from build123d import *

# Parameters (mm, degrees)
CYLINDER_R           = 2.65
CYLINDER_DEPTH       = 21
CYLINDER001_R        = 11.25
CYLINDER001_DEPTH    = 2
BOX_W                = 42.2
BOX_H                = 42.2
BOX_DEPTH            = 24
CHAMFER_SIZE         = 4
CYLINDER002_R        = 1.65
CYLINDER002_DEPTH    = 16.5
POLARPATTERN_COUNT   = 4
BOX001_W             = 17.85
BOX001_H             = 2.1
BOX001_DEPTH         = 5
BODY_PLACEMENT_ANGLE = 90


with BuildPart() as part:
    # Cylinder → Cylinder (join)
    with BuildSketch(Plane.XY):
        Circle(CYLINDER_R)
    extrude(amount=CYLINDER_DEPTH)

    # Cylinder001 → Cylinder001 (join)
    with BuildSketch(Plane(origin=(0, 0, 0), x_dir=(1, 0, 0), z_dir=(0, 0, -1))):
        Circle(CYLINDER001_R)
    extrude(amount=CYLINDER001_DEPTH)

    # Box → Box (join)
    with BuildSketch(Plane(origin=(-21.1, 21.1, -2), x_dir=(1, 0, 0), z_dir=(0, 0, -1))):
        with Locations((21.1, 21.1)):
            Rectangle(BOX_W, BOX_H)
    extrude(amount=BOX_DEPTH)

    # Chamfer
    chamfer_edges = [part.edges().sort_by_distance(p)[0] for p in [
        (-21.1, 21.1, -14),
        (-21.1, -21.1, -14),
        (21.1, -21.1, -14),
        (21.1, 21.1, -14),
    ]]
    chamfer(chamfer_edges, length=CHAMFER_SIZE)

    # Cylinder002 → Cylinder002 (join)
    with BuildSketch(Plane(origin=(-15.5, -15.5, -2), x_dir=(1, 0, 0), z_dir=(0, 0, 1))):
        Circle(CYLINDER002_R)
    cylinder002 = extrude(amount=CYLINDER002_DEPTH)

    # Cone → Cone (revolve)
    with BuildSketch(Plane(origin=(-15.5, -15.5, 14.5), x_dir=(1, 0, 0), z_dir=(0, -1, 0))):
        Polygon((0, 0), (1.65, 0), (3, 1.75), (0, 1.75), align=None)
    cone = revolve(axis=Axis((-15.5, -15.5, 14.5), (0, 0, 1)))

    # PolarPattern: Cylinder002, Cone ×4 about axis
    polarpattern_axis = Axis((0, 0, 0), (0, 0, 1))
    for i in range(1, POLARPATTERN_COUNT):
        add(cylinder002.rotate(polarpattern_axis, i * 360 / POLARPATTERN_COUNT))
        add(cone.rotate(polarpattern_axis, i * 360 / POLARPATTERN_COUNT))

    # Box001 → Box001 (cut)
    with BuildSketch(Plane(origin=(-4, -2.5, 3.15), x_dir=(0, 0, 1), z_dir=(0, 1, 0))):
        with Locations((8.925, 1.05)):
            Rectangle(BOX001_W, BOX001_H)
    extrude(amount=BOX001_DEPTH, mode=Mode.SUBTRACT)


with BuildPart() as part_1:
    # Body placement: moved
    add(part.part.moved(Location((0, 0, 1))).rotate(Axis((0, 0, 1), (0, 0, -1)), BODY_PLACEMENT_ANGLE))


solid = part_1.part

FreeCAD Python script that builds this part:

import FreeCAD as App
import Part
import Sketcher

V = App.Vector


def edges_at(feature, points):
    """Names of the edges that pass closest to the given points."""
    edges = feature.Shape.Edges
    near = lambda p: min(range(len(edges)), key=lambda i: edges[i].distToShape(Part.Vertex(*p))[0])
    return sorted({f"Edge{near(p) + 1}" for p in points})

doc = App.newDocument("Part")
body = doc.addObject("PartDesign::Body", "Body")

sketch1 = doc.addObject("Sketcher::SketchObject", "Sketch")
body.addObject(sketch1)
sketch1.AttachmentSupport = (doc.XY_Plane, [""])
sketch1.MapMode = "FlatFace"
sketch1.addGeometry(Part.Circle(V(0, 0, 0), V(0, 0, 1), 2.6), False)
sketch1.addConstraint(Sketcher.Constraint("Coincident", 0, 3, -1, 1))
sketch1.addConstraint(Sketcher.Constraint("Diameter", 0, 5.3))
pad1 = doc.addObject("PartDesign::Pad", "Pad")
body.addObject(pad1)
pad1.Profile = sketch1
pad1.Length = 21

sketch2 = doc.addObject("Sketcher::SketchObject", "Sketch001")
body.addObject(sketch2)
sketch2.AttachmentSupport = (doc.XY_Plane, [""])
sketch2.MapMode = "FlatFace"
sketch2.addGeometry(Part.Circle(V(0, 0, 0), V(0, 0, 1), 11), False)
sketch2.addConstraint(Sketcher.Constraint("Coincident", 0, 3, -1, 1))
sketch2.addConstraint(Sketcher.Constraint("Diameter", 0, 22.5))
pad2 = doc.addObject("PartDesign::Pad", "Pad001")
body.addObject(pad2)
pad2.Profile = sketch2
pad2.Length = 2
pad2.Reversed = True

sketch3 = doc.addObject("Sketcher::SketchObject", "Sketch002")
body.addObject(sketch3)
sketch3.AttachmentSupport = (doc.XY_Plane, [""])
sketch3.MapMode = "FlatFace"
sketch3.AttachmentOffset = App.Placement(V(0, 0, -2), App.Rotation())
sketch3.addGeometry(Part.LineSegment(V(-21, -21, 0), V(-21, 21, 0)), False)
sketch3.addGeometry(Part.LineSegment(V(-21, 21, 0), V(21, 21, 0)), False)
sketch3.addGeometry(Part.LineSegment(V(21, 21, 0), V(21, -21, 0)), False)
sketch3.addGeometry(Part.LineSegment(V(21, -21, 0), V(-21, -21, 0)), False)
sketch3.addConstraint(Sketcher.Constraint("Coincident", 0, 2, 1, 1))
sketch3.addConstraint(Sketcher.Constraint("Coincident", 1, 2, 2, 1))
sketch3.addConstraint(Sketcher.Constraint("Coincident", 2, 2, 3, 1))
sketch3.addConstraint(Sketcher.Constraint("Coincident", 3, 2, 0, 1))
sketch3.addConstraint(Sketcher.Constraint("Vertical", 0))
sketch3.addConstraint(Sketcher.Constraint("Horizontal", 1))
sketch3.addConstraint(Sketcher.Constraint("Vertical", 2))
sketch3.addConstraint(Sketcher.Constraint("Horizontal", 3))
sketch3.addConstraint(Sketcher.Constraint("Symmetric", 0, 2, 2, 2, -1, 1))
sketch3.addConstraint(Sketcher.Constraint("Equal", 3, 0))
sketch3.addConstraint(Sketcher.Constraint("DistanceX", 1, 1, 1, 2, 42.2))
pad3 = doc.addObject("PartDesign::Pad", "Pad002")
body.addObject(pad3)
pad3.Profile = sketch3
pad3.Length = 24
pad3.Reversed = True
doc.recompute()

chamfer = doc.addObject("PartDesign::Chamfer", "Chamfer")
body.addObject(chamfer)
chamfer.Base = (pad3, edges_at(pad3, [
    (-21.1, 21.1, -14),
    (-21.1, -21.1, -14),
    (21.1, -21.1, -14),
    (21.1, 21.1, -14),
]))
chamfer.Size = 4

sketch4 = doc.addObject("Sketcher::SketchObject", "Sketch003")
body.addObject(sketch4)
sketch4.AttachmentSupport = (doc.XY_Plane, [""])
sketch4.MapMode = "FlatFace"
sketch4.AttachmentOffset = App.Placement(V(0, 0, -2), App.Rotation())
sketch4.addGeometry(Part.Circle(V(-15.5, -15.5, 0), V(0, 0, 1), 1.6), False)
sketch4.addConstraint(Sketcher.Constraint("Diameter", 0, 3.3))
sketch4.addConstraint(Sketcher.Constraint("DistanceX", 0, 3, -1, 1, 15.5))
sketch4.addConstraint(Sketcher.Constraint("DistanceY", 0, 3, -1, 1, 15.5))
pad4 = doc.addObject("PartDesign::Pad", "Pad003")
body.addObject(pad4)
pad4.Profile = sketch4
pad4.Length = 16.5

sketch5 = doc.addObject("Sketcher::SketchObject", "Sketch004")
body.addObject(sketch5)
sketch5.AttachmentSupport = (doc.XZ_Plane, [""])
sketch5.MapMode = "FlatFace"
sketch5.AttachmentOffset = App.Placement(V(0, 0, 15.5), App.Rotation())
sketch5.addGeometry(Part.LineSegment(V(-15.5, 14.5, 0), V(-13.8, 14.5, 0)), False)
sketch5.addGeometry(Part.LineSegment(V(-13.8, 14.5, 0), V(-12.5, 16.2, 0)), False)
sketch5.addGeometry(Part.LineSegment(V(-12.5, 16.2, 0), V(-15.5, 16.2, 0)), False)
sketch5.addGeometry(Part.LineSegment(V(-15.5, 16.2, 0), V(-15.5, 14.5, 0)), False)
sketch5.addGeometry(Part.LineSegment(V(-15.5, 14.5, 0), V(-15.5, 16.2, 0)), True)
sketch5.addConstraint(Sketcher.Constraint("Coincident", 0, 2, 1, 1))
sketch5.addConstraint(Sketcher.Constraint("Coincident", 1, 2, 2, 1))
sketch5.addConstraint(Sketcher.Constraint("Coincident", 2, 2, 3, 1))
sketch5.addConstraint(Sketcher.Constraint("Coincident", 3, 2, 0, 1))
sketch5.addConstraint(Sketcher.Constraint("Horizontal", 0))
sketch5.addConstraint(Sketcher.Constraint("Horizontal", 2))
sketch5.addConstraint(Sketcher.Constraint("Vertical", 3))
sketch5.addConstraint(Sketcher.Constraint("Vertical", 4))
sketch5.addConstraint(Sketcher.Constraint("Coincident", 4, 1, 3, 2))
sketch5.addConstraint(Sketcher.Constraint("Horizontal", 1, 2, 4, 2))
sketch5.addConstraint(Sketcher.Constraint("DistanceX", 2, 2, 2, 1, 3.0))
sketch5.addConstraint(Sketcher.Constraint("DistanceX", 0, 1, 0, 2, 1.65))
sketch5.addConstraint(Sketcher.Constraint("DistanceY", 3, 2, 3, 1, 1.75))
sketch5.addConstraint(Sketcher.Constraint("DistanceY", -1, 1, 0, 2, 14.5))
sketch5.addConstraint(Sketcher.Constraint("DistanceX", 1, 2, -1, 1, 12.5))
revolution = doc.addObject("PartDesign::Revolution", "Revolution")
body.addObject(revolution)
revolution.Profile = sketch5
revolution.ReferenceAxis = (sketch5, ["Axis0"])
revolution.Angle = 360
doc.recompute()

polarpattern = doc.addObject("PartDesign::PolarPattern", "PolarPattern")
body.addObject(polarpattern)
polarpattern.Originals = [pad4, revolution]
polarpattern.Axis = (doc.Z_Axis, [""])
polarpattern.Angle = 360
polarpattern.Occurrences = 4
body.Tip = polarpattern

sketch6 = doc.addObject("Sketcher::SketchObject", "Sketch005")
body.addObject(sketch6)
sketch6.AttachmentSupport = (doc.XZ_Plane, [""])
sketch6.MapMode = "FlatFace"
sketch6.AttachmentOffset = App.Placement(V(0, 0, 2.5), App.Rotation())
sketch6.addGeometry(Part.LineSegment(V(-1.9, 3.1, 0), V(-4, 3.1, 0)), False)
sketch6.addGeometry(Part.LineSegment(V(-4, 3.1, 0), V(-4, 21, 0)), False)
sketch6.addGeometry(Part.LineSegment(V(-4, 21, 0), V(-1.9, 21, 0)), False)
sketch6.addGeometry(Part.LineSegment(V(-1.9, 21, 0), V(-1.9, 3.1, 0)), False)
sketch6.addConstraint(Sketcher.Constraint("Coincident", 0, 2, 1, 1))
sketch6.addConstraint(Sketcher.Constraint("Coincident", 1, 2, 2, 1))
sketch6.addConstraint(Sketcher.Constraint("Coincident", 2, 2, 3, 1))
sketch6.addConstraint(Sketcher.Constraint("Coincident", 3, 2, 0, 1))
sketch6.addConstraint(Sketcher.Constraint("Horizontal", 0))
sketch6.addConstraint(Sketcher.Constraint("Vertical", 1))
sketch6.addConstraint(Sketcher.Constraint("Horizontal", 2))
sketch6.addConstraint(Sketcher.Constraint("Vertical", 3))
sketch6.addConstraint(Sketcher.Constraint("DistanceX", 0, 2, 0, 1, 2.1))
sketch6.addConstraint(Sketcher.Constraint("DistanceX", 0, 2, -1, 1, 4.0))
sketch6.addConstraint(Sketcher.Constraint("DistanceY", -1, 1, 1, 2, 21.0))
sketch6.addConstraint(Sketcher.Constraint("DistanceY", 1, 1, 1, 2, 17.85))
pocket1 = doc.addObject("PartDesign::Pocket", "Pocket")
body.addObject(pocket1)
pocket1.Profile = sketch6
pocket1.Length = 5
body2 = doc.addObject("PartDesign::Body", "Body001")
doc.recompute()

body.Placement = App.Placement(V(0, 0, 1), App.Rotation(V(0, 0, -1), 90))
boolean = doc.addObject("PartDesign::Boolean", "Boolean")
body2.addObject(boolean)
boolean.Type = "Fuse"
boolean.addObjects([body])

doc.recompute()
